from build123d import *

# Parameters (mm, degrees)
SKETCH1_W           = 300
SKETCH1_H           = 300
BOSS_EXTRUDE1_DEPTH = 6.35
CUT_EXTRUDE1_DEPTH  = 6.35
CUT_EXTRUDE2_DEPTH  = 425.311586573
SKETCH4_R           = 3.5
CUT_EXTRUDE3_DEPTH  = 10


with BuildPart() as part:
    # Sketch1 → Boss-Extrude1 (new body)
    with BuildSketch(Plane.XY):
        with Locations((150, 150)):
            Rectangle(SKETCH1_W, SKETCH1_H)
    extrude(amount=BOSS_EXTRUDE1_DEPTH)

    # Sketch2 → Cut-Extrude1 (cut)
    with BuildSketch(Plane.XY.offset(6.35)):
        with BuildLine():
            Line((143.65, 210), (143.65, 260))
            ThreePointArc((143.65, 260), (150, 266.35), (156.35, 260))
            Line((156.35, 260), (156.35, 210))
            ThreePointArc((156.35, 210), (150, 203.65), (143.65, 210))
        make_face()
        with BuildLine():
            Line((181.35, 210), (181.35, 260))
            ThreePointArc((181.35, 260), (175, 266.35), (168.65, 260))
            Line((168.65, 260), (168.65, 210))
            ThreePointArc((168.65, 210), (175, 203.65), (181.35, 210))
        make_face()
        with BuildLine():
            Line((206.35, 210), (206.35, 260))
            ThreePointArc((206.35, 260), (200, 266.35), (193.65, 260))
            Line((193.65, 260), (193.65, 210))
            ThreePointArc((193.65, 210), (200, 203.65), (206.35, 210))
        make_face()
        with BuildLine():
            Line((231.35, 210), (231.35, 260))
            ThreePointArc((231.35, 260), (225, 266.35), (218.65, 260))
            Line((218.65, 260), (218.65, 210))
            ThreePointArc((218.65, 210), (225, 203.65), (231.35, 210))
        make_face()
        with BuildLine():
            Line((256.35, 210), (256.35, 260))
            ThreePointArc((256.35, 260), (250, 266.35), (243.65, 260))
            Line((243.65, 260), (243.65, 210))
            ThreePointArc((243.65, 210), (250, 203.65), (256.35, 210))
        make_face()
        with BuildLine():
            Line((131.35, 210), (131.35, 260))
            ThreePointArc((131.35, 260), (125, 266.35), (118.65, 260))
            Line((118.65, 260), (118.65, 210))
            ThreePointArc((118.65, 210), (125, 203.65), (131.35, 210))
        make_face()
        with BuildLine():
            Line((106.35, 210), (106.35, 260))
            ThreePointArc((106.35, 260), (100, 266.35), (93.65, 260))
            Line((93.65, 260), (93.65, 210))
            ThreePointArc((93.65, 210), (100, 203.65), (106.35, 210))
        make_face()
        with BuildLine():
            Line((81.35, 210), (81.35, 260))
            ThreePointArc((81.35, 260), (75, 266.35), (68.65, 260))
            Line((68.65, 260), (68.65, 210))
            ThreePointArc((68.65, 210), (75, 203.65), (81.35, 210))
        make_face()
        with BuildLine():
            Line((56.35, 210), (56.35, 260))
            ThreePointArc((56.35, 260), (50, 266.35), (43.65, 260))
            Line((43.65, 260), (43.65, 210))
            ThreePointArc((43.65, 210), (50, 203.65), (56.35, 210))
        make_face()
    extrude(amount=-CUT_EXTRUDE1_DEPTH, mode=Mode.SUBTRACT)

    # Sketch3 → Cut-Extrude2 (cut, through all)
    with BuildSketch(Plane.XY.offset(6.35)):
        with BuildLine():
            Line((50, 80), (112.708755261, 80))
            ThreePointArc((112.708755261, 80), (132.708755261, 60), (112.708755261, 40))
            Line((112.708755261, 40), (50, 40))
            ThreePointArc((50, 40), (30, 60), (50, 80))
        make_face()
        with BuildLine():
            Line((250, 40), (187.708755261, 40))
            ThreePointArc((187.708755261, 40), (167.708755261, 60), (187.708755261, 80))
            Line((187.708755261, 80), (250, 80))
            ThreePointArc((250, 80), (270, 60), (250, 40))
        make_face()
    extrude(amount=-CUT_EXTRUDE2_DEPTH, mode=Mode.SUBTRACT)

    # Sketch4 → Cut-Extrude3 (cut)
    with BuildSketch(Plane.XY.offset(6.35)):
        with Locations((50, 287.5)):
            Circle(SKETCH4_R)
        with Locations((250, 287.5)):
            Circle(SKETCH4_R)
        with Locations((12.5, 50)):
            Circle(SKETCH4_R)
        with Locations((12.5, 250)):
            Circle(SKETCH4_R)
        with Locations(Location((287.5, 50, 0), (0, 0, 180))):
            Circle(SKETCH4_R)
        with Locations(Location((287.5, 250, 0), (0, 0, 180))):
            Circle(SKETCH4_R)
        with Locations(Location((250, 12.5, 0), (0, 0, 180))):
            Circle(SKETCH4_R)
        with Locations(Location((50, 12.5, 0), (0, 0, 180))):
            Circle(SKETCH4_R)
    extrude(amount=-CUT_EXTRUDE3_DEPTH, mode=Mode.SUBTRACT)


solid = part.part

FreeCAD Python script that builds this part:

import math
import FreeCAD as App
import Part
import Sketcher
from FreeCAD import Vector

doc = App.newDocument("Part")
body = doc.addObject("PartDesign::Body", "Body")

sketch1 = body.newObject("Sketcher::SketchObject", "Sketch")
sketch1.AttachmentSupport = (doc.getObject("XY_Plane"), [""])
sketch1.MapMode = "FlatFace"
sketch1.addGeometry(Part.LineSegment(Vector(0, 300, 0), Vector(0, 0, 0)), False)
sketch1.addGeometry(Part.LineSegment(Vector(0, 0, 0), Vector(300, 0, 0)), False)
sketch1.addGeometry(Part.LineSegment(Vector(300, 0, 0), Vector(300, 300, 0)), False)
sketch1.addGeometry(Part.LineSegment(Vector(300, 300, 0), Vector(0, 300, 0)), False)
sketch1.addConstraint(Sketcher.Constraint("Coincident", 0, 2, 1, 1))
sketch1.addConstraint(Sketcher.Constraint("Coincident", 1, 2, 2, 1))
sketch1.addConstraint(Sketcher.Constraint("Coincident", 2, 2, 3, 1))
sketch1.addConstraint(Sketcher.Constraint("Coincident", 3, 2, 0, 1))
sketch1.addConstraint(Sketcher.Constraint("Vertical", 0))
sketch1.addConstraint(Sketcher.Constraint("Horizontal", 1))
sketch1.addConstraint(Sketcher.Constraint("Vertical", 2))
sketch1.addConstraint(Sketcher.Constraint("Horizontal", 3))
sketch1.addConstraint(Sketcher.Constraint("Coincident", 0, 2, -1, 1))
sketch1.addConstraint(Sketcher.Constraint("Equal", 3, 0))
sketch1.addConstraint(Sketcher.Constraint("DistanceX", 1, 1, 1, 2, 300.0))
pad1 = body.newObject("PartDesign::Pad", "Pad")
pad1.Profile = sketch1
pad1.Length = 6.35

sketch2 = body.newObject("Sketcher::SketchObject", "Sketch001")
sketch2.AttachmentSupport = (doc.getObject("XY_Plane"), [""])
sketch2.MapMode = "FlatFace"
sketch2.AttachmentOffset = App.Placement(Vector(0, 0, 6.35), App.Rotation())
sketch2.addGeometry(Part.LineSegment(Vector(144, 260, 0), Vector(144, 210, 0)), False)
sketch2.addGeometry(Part.ArcOfCircle(Part.Circle(Vector(150, 210, 0), Vector(0, 0, 1), 6), math.radians(180), math.radians(360)), False)
sketch2.addGeometry(Part.LineSegment(Vector(156, 210, 0), Vector(156, 260, 0)), False)
sketch2.addGeometry(Part.ArcOfCircle(Part.Circle(Vector(150, 260, 0), Vector(0, 0, 1), 6), math.radians(0), math.radians(180)), False)
sketch2.addGeometry(Part.LineSegment(Vector(181, 210, 0), Vector(181, 260, 0)), False)
sketch2.addGeometry(Part.ArcOfCircle(Part.Circle(Vector(175, 260, 0), Vector(0, 0, 1), 6), math.radians(0), math.radians(180)), False)
sketch2.addGeometry(Part.LineSegment(Vector(169, 260, 0), Vector(169, 210, 0)), False)
sketch2.addGeometry(Part.ArcOfCircle(Part.Circle(Vector(175, 210, 0), Vector(0, 0, 1), 6), math.radians(180), math.radians(360)), False)
sketch2.addGeometry(Part.LineSegment(Vector(206, 210, 0), Vector(206, 260, 0)), False)
sketch2.addGeometry(Part.ArcOfCircle(Part.Circle(Vector(200, 260, 0), Vector(0, 0, 1), 6), math.radians(0), math.radians(180)), False)
sketch2.addGeometry(Part.LineSegment(Vector(194, 260, 0), Vector(194, 210, 0)), False)
sketch2.addGeometry(Part.ArcOfCircle(Part.Circle(Vector(200, 210, 0), Vector(0, 0, 1), 6), math.radians(180), math.radians(360)), False)
sketch2.addGeometry(Part.LineSegment(Vector(231, 210, 0), Vector(231, 260, 0)), False)
sketch2.addGeometry(Part.ArcOfCircle(Part.Circle(Vector(225, 260, 0), Vector(0, 0, 1), 6), math.radians(0), math.radians(180)), False)
sketch2.addGeometry(Part.LineSegment(Vector(219, 260, 0), Vector(219, 210, 0)), False)
sketch2.addGeometry(Part.ArcOfCircle(Part.Circle(Vector(225, 210, 0), Vector(0, 0, 1), 6), math.radians(180), math.radians(360)), False)
sketch2.addGeometry(Part.LineSegment(Vector(256, 210, 0), Vector(256, 260, 0)), False)
sketch2.addGeometry(Part.ArcOfCircle(Part.Circle(Vector(250, 260, 0), Vector(0, 0, 1), 6), math.radians(0), math.radians(180)), False)
sketch2.addGeometry(Part.LineSegment(Vector(244, 260, 0), Vector(244, 210, 0)), False)
sketch2.addGeometry(Part.ArcOfCircle(Part.Circle(Vector(250, 210, 0), Vector(0, 0, 1), 6), math.radians(180), math.radians(360)), False)
sketch2.addGeometry(Part.LineSegment(Vector(131, 210, 0), Vector(131, 260, 0)), False)
sketch2.addGeometry(Part.ArcOfCircle(Part.Circle(Vector(125, 260, 0), Vector(0, 0, 1), 6), math.radians(0), math.radians(180)), False)
sketch2.addGeometry(Part.LineSegment(Vector(119, 260, 0), Vector(119, 210, 0)), False)
sketch2.addGeometry(Part.ArcOfCircle(Part.Circle(Vector(125, 210, 0), Vector(0, 0, 1), 6), math.radians(180), math.radians(360)), False)
sketch2.addGeometry(Part.LineSegment(Vector(106, 210, 0), Vector(106, 260, 0)), False)
sketch2.addGeometry(Part.ArcOfCircle(Part.Circle(Vector(100, 260, 0), Vector(0, 0, 1), 6), math.radians(0), math.radians(180)), False)
sketch2.addGeometry(Part.LineSegment(Vector(94, 260, 0), Vector(94, 210, 0)), False)
sketch2.addGeometry(Part.ArcOfCircle(Part.Circle(Vector(100, 210, 0), Vector(0, 0, 1), 6), math.radians(180), math.radians(360)), False)
sketch2.addGeometry(Part.LineSegment(Vector(81, 210, 0), Vector(81, 260, 0)), False)
sketch2.addGeometry(Part.ArcOfCircle(Part.Circle(Vector(75, 260, 0), Vector(0, 0, 1), 6), math.radians(0), math.radians(180)), False)
sketch2.addGeometry(Part.LineSegment(Vector(69, 260, 0), Vector(69, 210, 0)), False)
sketch2.addGeometry(Part.ArcOfCircle(Part.Circle(Vector(75, 210, 0), Vector(0, 0, 1), 6), math.radians(180), math.radians(360)), False)
sketch2.addGeometry(Part.LineSegment(Vector(56, 210, 0), Vector(56, 260, 0)), False)
sketch2.addGeometry(Part.ArcOfCircle(Part.Circle(Vector(50, 260, 0), Vector(0, 0, 1), 6), math.radians(0), math.radians(180)), False)
sketch2.addGeometry(Part.LineSegment(Vector(44, 260, 0), Vector(44, 210, 0)), False)
sketch2.addGeometry(Part.ArcOfCircle(Part.Circle(Vector(50, 210, 0), Vector(0, 0, 1), 6), math.radians(180), math.radians(360)), False)
sketch2.addConstraint(Sketcher.Constraint("Tangent", 0, 2, 1, 1))
sketch2.addConstraint(Sketcher.Constraint("Tangent", 1, 2, 2, 1))
sketch2.addConstraint(Sketcher.Constraint("Tangent", 2, 2, 3, 1))
sketch2.addConstraint(Sketcher.Constraint("Tangent", 3, 2, 0, 1))
sketch2.addConstraint(Sketcher.Constraint("Tangent", 4, 2, 5, 1))
sketch2.addConstraint(Sketcher.Constraint("Tangent", 5, 2, 6, 1))
sketch2.addConstraint(Sketcher.Constraint("Tangent", 6, 2, 7, 1))
sketch2.addConstraint(Sketcher.Constraint("Tangent", 7, 2, 4, 1))
sketch2.addConstraint(Sketcher.Constraint("Tangent", 8, 2, 9, 1))
sketch2.addConstraint(Sketcher.Constraint("Tangent", 9, 2, 10, 1))
sketch2.addConstraint(Sketcher.Constraint("Tangent", 10, 2, 11, 1))
sketch2.addConstraint(Sketcher.Constraint("Tangent", 11, 2, 8, 1))
sketch2.addConstraint(Sketcher.Constraint("Tangent", 12, 2, 13, 1))
sketch2.addConstraint(Sketcher.Constraint("Tangent", 13, 2, 14, 1))
sketch2.addConstraint(Sketcher.Constraint("Tangent", 14, 2, 15, 1))
sketch2.addConstraint(Sketcher.Constraint("Tangent", 15, 2, 12, 1))
sketch2.addConstraint(Sketcher.Constraint("Tangent", 16, 2, 17, 1))
sketch2.addConstraint(Sketcher.Constraint("Tangent", 17, 2, 18, 1))
sketch2.addConstraint(Sketcher.Constraint("Tangent", 18, 2, 19, 1))
sketch2.addConstraint(Sketcher.Constraint("Tangent", 19, 2, 16, 1))
sketch2.addConstraint(Sketcher.Constraint("Tangent", 20, 2, 21, 1))
sketch2.addConstraint(Sketcher.Constraint("Tangent", 21, 2, 22, 1))
sketch2.addConstraint(Sketcher.Constraint("Tangent", 22, 2, 23, 1))
sketch2.addConstraint(Sketcher.Constraint("Tangent", 23, 2, 20, 1))
sketch2.addConstraint(Sketcher.Constraint("Tangent", 24, 2, 25, 1))
sketch2.addConstraint(Sketcher.Constraint("Tangent", 25, 2, 26, 1))
sketch2.addConstraint(Sketcher.Constraint("Tangent", 26, 2, 27, 1))
sketch2.addConstraint(Sketcher.Constraint("Tangent", 27, 2, 24, 1))
sketch2.addConstraint(Sketcher.Constraint("Tangent", 28, 2, 29, 1))
sketch2.addConstraint(Sketcher.Constraint("Tangent", 29, 2, 30, 1))
sketch2.addConstraint(Sketcher.Constraint("Tangent", 30, 2, 31, 1))
sketch2.addConstraint(Sketcher.Constraint("Tangent", 31, 2, 28, 1))
sketch2.addConstraint(Sketcher.Constraint("Tangent", 32, 2, 33, 1))
sketch2.addConstraint(Sketcher.Constraint("Tangent", 33, 2, 34, 1))
sketch2.addConstraint(Sketcher.Constraint("Tangent", 34, 2, 35, 1))
sketch2.addConstraint(Sketcher.Constraint("Tangent", 35, 2, 32, 1))
sketch2.addConstraint(Sketcher.Constraint("Vertical", 0))
sketch2.addConstraint(Sketcher.Constraint("Vertical", 2))
sketch2.addConstraint(Sketcher.Constraint("Vertical", 4))
sketch2.addConstraint(Sketcher.Constraint("Vertical", 6))
sketch2.addConstraint(Sketcher.Constraint("Vertical", 8))
sketch2.addConstraint(Sketcher.Constraint("Vertical", 10))
sketch2.addConstraint(Sketcher.Constraint("Vertical", 12))
sketch2.addConstraint(Sketcher.Constraint("Vertical", 14))
sketch2.addConstraint(Sketcher.Constraint("Vertical", 16))
sketch2.addConstraint(Sketcher.Constraint("Vertical", 18))
sketch2.addConstraint(Sketcher.Constraint("Vertical", 20))
sketch2.addConstraint(Sketcher.Constraint("Vertical", 22))
sketch2.addConstraint(Sketcher.Constraint("Vertical", 24))
sketch2.addConstraint(Sketcher.Constraint("Vertical", 26))
sketch2.addConstraint(Sketcher.Constraint("Vertical", 28))
sketch2.addConstraint(Sketcher.Constraint("Vertical", 30))
sketch2.addConstraint(Sketcher.Constraint("Vertical", 32))
sketch2.addConstraint(Sketcher.Constraint("Vertical", 34))
sketch2.addConstraint(Sketcher.Constraint("Equal", 3, 5))
sketch2.addConstraint(Sketcher.Constraint("Equal", 7, 9))
sketch2.addConstraint(Sketcher.Constraint("Equal", 11, 13))
sketch2.addConstraint(Sketcher.Constraint("Equal", 15, 17))
sketch2.addConstraint(Sketcher.Constraint("Equal", 19, 21))
sketch2.addConstraint(Sketcher.Constraint("Equal", 23, 25))
sketch2.addConstraint(Sketcher.Constraint("Equal", 27, 29))
sketch2.addConstraint(Sketcher.Constraint("Equal", 31, 33))
sketch2.addConstraint(Sketcher.Constraint("Horizontal", 3, 3, 5, 3))
sketch2.addConstraint(Sketcher.Constraint("Horizontal", 1, 3, 7, 3))
sketch2.addConstraint(Sketcher.Constraint("Horizontal", 5, 3, 9, 3))
sketch2.addConstraint(Sketcher.Constraint("Horizontal", 7, 3, 11, 3))
sketch2.addConstraint(Sketcher.Constraint("Horizontal", 9, 3, 13, 3))
sketch2.addConstraint(Sketcher.Constraint("Horizontal", 11, 3, 15, 3))
sketch2.addConstraint(Sketcher.Constraint("Horizontal", 13, 3, 17, 3))
sketch2.addConstraint(Sketcher.Constraint("Horizontal", 15, 3, 19, 3))
sketch2.addConstraint(Sketcher.Constraint("Horizontal", 17, 3, 21, 3))
sketch2.addConstraint(Sketcher.Constraint("Horizontal", 19, 3, 23, 3))
sketch2.addConstraint(Sketcher.Constraint("Horizontal", 21, 3, 25, 3))
sketch2.addConstraint(Sketcher.Constraint("Horizontal", 23, 3, 27, 3))
sketch2.addConstraint(Sketcher.Constraint("Horizontal", 25, 3, 29, 3))
sketch2.addConstraint(Sketcher.Constraint("Horizontal", 27, 3, 31, 3))
sketch2.addConstraint(Sketcher.Constraint("Horizontal", 29, 3, 33, 3))
sketch2.addConstraint(Sketcher.Constraint("Horizontal", 31, 3, 35, 3))
sketch2.addConstraint(Sketcher.Constraint("DistanceY", 0, 2, 0, 1, 50.0))
sketch2.addConstraint(Sketcher.Constraint("Radius", 1, 6.35))
sketch2.addConstraint(Sketcher.Constraint("DistanceX", -1, 1, 1, 3, 150.0))
sketch2.addConstraint(Sketcher.Constraint("DistanceY", -1, 1, 1, 3, 210.0))
sketch2.addConstraint(Sketcher.Constraint("DistanceX", -1, 1, 5, 3, 175.0))
sketch2.addConstraint(Sketcher.Constraint("DistanceX", -1, 1, 9, 3, 200.0))
sketch2.addConstraint(Sketcher.Constraint("DistanceX", -1, 1, 13, 3, 225.0))
sketch2.addConstraint(Sketcher.Constraint("DistanceX", -1, 1, 17, 3, 250.0))
sketch2.addConstraint(Sketcher.Constraint("DistanceX", -1, 1, 21, 3, 125.0))
sketch2.addConstraint(Sketcher.Constraint("DistanceX", -1, 1, 25, 3, 100.0))
sketch2.addConstraint(Sketcher.Constraint("DistanceX", -1, 1, 29, 3, 75.0))
sketch2.addConstraint(Sketcher.Constraint("DistanceX", -1, 1, 33, 3, 50.0))
pocket1 = body.newObject("PartDesign::Pocket", "Pocket")
pocket1.Profile = sketch2
pocket1.Length = 6.35

sketch3 = body.newObject("Sketcher::SketchObject", "Sketch002")
sketch3.AttachmentSupport = (doc.getObject("XY_Plane"), [""])
sketch3.MapMode = "FlatFace"
sketch3.AttachmentOffset = App.Placement(Vector(0, 0, 6.35), App.Rotation())
sketch3.addGeometry(Part.LineSegment(Vector(113, 80, 0), Vector(50, 80, 0)), False)
sketch3.addGeometry(Part.ArcOfCircle(Part.Circle(Vector(50, 60, 0), Vector(0, 0, 1), 20), math.radians(90), math.radians(270)), False)
sketch3.addGeometry(Part.LineSegment(Vector(50, 40, 0), Vector(113, 40, 0)), False)
sketch3.addGeometry(Part.ArcOfCircle(Part.Circle(Vector(113, 60, 0), Vector(0, 0, 1), 20), math.radians(-90), math.radians(90)), False)
sketch3.addGeometry(Part.LineSegment(Vector(188, 40, 0), Vector(250, 40, 0)), False)
sketch3.addGeometry(Part.ArcOfCircle(Part.Circle(Vector(250, 60, 0), Vector(0, 0, 1), 20), math.radians(-90), math.radians(90)), False)
sketch3.addGeometry(Part.LineSegment(Vector(250, 80, 0), Vector(188, 80, 0)), False)
sketch3.addGeometry(Part.ArcOfCircle(Part.Circle(Vector(188, 60, 0), Vector(0, 0, 1), 20), math.radians(90), math.radians(270)), False)
sketch3.addConstraint(Sketcher.Constraint("Tangent", 0, 2, 1, 1))
sketch3.addConstraint(Sketcher.Constraint("Tangent", 1, 2, 2, 1))
sketch3.addConstraint(Sketcher.Constraint("Tangent", 2, 2, 3, 1))
sketch3.addConstraint(Sketcher.Constraint("Tangent", 3, 2, 0, 1))
sketch3.addConstraint(Sketcher.Constraint("Tangent", 4, 2, 5, 1))
sketch3.addConstraint(Sketcher.Constraint("Tangent", 5, 2, 6, 1))
sketch3.addConstraint(Sketcher.Constraint("Tangent", 6, 2, 7, 1))
sketch3.addConstraint(Sketcher.Constraint("Tangent", 7, 2, 4, 1))
sketch3.addConstraint(Sketcher.Constraint("Horizontal", 0))
sketch3.addConstraint(Sketcher.Constraint("Horizontal", 2))
sketch3.addConstraint(Sketcher.Constraint("Horizontal", 4))
sketch3.addConstraint(Sketcher.Constraint("Horizontal", 6))
sketch3.addConstraint(Sketcher.Constraint("Equal", 3, 5))
sketch3.addConstraint(Sketcher.Constraint("Horizontal", 3, 3, 5, 3))
sketch3.addConstraint(Sketcher.Constraint("Radius", 1, 20.0))
sketch3.addConstraint(Sketcher.Constraint("DistanceX", -1, 1, 1, 3, 50.0))
sketch3.addConstraint(Sketcher.Constraint("DistanceY", -1, 1, 1, 3, 60.0))
sketch3.addConstraint(Sketcher.Constraint("DistanceX", -1, 1, 5, 3, 250.0))
sketch3.addConstraint(Sketcher.Constraint("DistanceX", 3, 3, 7, 3, 75.0))
sketch3.addConstraint(Sketcher.Constraint("DistanceX", 0, 2, 0, 1, 62.708755))
pocket2 = body.newObject("PartDesign::Pocket", "Pocket001")
pocket2.Profile = sketch3
pocket2.Type = "ThroughAll"

sketch4 = body.newObject("Sketcher::SketchObject", "Sketch003")
sketch4.AttachmentSupport = (doc.getObject("XY_Plane"), [""])
sketch4.MapMode = "FlatFace"
sketch4.AttachmentOffset = App.Placement(Vector(0, 0, 6.35), App.Rotation())
sketch4.addGeometry(Part.Circle(Vector(50, 287.5, 0), Vector(0, 0, 1), 3.5), False)
sketch4.addGeometry(Part.Circle(Vector(250, 287.5, 0), Vector(0, 0, 1), 3.5), False)
sketch4.addGeometry(Part.Circle(Vector(12.5, 50, 0), Vector(0, 0, 1), 3.5), False)
sketch4.addGeometry(Part.Circle(Vector(12.5, 250, 0), Vector(0, 0, 1), 3.5), False)
sketch4.addGeometry(Part.Circle(Vector(287.5, 50, 0), Vector(0, 0, 1), 3.5), False)
sketch4.addGeometry(Part.Circle(Vector(287.5, 250, 0), Vector(0, 0, 1), 3.5), False)
sketch4.addGeometry(Part.Circle(Vector(250, 12.5, 0), Vector(0, 0, 1), 3.5), False)
sketch4.addGeometry(Part.Circle(Vector(50, 12.5, 0), Vector(0, 0, 1), 3.5), False)
sketch4.addConstraint(Sketcher.Constraint("Equal", 0, 1))
sketch4.addConstraint(Sketcher.Constraint("Equal", 1, 2))
sketch4.addConstraint(Sketcher.Constraint("Equal", 2, 3))
sketch4.addConstraint(Sketcher.Constraint("Equal", 3, 4))
sketch4.addConstraint(Sketcher.Constraint("Equal", 4, 5))
sketch4.addConstraint(Sketcher.Constraint("Equal", 5, 6))
sketch4.addConstraint(Sketcher.Constraint("Equal", 6, 7))
sketch4.addConstraint(Sketcher.Constraint("Horizontal", 0, 3, 1, 3))
sketch4.addConstraint(Sketcher.Constraint("Horizontal", 2, 3, 4, 3))
sketch4.addConstraint(Sketcher.Constraint("Horizontal", 3, 3, 5, 3))
sketch4.addConstraint(Sketcher.Constraint("Horizontal", 6, 3, 7, 3))
sketch4.addConstraint(Sketcher.Constraint("Vertical", 2, 3, 3, 3))
sketch4.addConstraint(Sketcher.Constraint("Vertical", 4, 3, 5, 3))
sketch4.addConstraint(Sketcher.Constraint("Vertical", 1, 3, 6, 3))
sketch4.addConstraint(Sketcher.Constraint("Vertical", 0, 3, 7, 3))
sketch4.addConstraint(Sketcher.Constraint("Diameter", 0, 7.0))
sketch4.addConstraint(Sketcher.Constraint("DistanceX", -1, 1, 0, 3, 50.0))
sketch4.addConstraint(Sketcher.Constraint("DistanceX", -1, 1, 1, 3, 250.0))
sketch4.addConstraint(Sketcher.Constraint("DistanceY", -1, 1, 2, 3, 50.0))
sketch4.addConstraint(Sketcher.Constraint("DistanceY", -1, 1, 3, 3, 250.0))
sketch4.addConstraint(Sketcher.Constraint("DistanceX", 2, 3, 4, 3, 275.0))
sketch4.addConstraint(Sketcher.Constraint("DistanceY", 6, 3, 1, 3, 275.0))
sketch4.addConstraint(Sketcher.Constraint("DistanceY", -1, 1, 0, 3, 287.5))
sketch4.addConstraint(Sketcher.Constraint("DistanceX", -1, 1, 2, 3, 12.5))
pocket3 = body.newObject("PartDesign::Pocket", "Pocket002")
pocket3.Profile = sketch4
pocket3.Length = 10

doc.recompute()
